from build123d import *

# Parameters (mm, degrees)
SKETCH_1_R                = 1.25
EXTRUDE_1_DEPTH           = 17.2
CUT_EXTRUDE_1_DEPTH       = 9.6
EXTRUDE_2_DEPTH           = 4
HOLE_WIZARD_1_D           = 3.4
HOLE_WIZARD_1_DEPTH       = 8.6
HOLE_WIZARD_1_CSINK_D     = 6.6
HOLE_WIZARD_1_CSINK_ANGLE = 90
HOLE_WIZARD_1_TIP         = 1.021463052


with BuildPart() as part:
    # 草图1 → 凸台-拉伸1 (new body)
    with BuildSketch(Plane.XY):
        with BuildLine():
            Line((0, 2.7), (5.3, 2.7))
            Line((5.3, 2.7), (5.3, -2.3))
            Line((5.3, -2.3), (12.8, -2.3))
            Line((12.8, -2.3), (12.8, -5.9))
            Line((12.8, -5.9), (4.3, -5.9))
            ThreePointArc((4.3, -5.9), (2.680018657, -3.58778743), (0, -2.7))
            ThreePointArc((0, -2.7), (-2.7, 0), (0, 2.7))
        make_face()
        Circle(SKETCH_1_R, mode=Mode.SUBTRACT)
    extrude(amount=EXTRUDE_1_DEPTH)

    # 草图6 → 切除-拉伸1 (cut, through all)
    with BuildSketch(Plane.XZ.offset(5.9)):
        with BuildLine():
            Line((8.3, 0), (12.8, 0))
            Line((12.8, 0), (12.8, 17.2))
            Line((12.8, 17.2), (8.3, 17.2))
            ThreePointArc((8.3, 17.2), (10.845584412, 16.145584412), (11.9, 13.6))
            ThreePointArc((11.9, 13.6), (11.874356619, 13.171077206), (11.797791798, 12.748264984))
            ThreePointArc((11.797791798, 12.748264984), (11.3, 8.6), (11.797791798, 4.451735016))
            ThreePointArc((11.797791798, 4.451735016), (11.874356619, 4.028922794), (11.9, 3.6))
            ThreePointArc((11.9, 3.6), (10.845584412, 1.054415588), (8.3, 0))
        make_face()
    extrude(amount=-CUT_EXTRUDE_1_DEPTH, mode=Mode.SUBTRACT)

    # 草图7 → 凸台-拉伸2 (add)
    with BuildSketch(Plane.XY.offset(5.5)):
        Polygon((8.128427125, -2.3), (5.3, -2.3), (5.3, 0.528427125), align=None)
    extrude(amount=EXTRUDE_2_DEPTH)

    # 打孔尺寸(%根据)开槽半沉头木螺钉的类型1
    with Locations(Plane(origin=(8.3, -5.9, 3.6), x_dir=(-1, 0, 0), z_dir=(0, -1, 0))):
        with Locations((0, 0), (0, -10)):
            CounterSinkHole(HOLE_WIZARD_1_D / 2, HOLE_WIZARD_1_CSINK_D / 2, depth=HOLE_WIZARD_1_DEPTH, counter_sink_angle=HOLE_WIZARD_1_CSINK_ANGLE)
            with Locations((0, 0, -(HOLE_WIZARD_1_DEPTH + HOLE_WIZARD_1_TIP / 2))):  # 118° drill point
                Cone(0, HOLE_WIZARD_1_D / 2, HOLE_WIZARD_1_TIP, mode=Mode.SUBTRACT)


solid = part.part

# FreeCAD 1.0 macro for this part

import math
import FreeCAD as App
import Part
import Sketcher
from FreeCAD import Vector
Q = App.Units.Quantity


def add_polygon(sketch, points):
    """Adds a closed chain of lines whose ends are joined by coincident constraints."""
    first, n = sketch.GeometryCount, len(points)
    for a, b in zip(points, points[1:] + points[:1]):
        sketch.addGeometry(Part.LineSegment(App.Vector(*a, 0), App.Vector(*b, 0)), False)
    for i in range(n):
        sketch.addConstraint(Sketcher.Constraint("Coincident", first + i, 2, first + (i + 1) % n, 1))

doc = App.newDocument("Part")
body = doc.addObject("PartDesign::Body", "Body")

# Sketch on XY plane
sketch1 = body.newObject("Sketcher::SketchObject", "Sketch")
sketch1.AttachmentSupport = (doc.getObject("XY_Plane"), [""])
sketch1.MapMode = "FlatFace"
sketch1.addGeometry(Part.LineSegment(Vector(5.3, 2.7, 0), Vector(0, 2.7, 0)), False)
sketch1.addGeometry(Part.ArcOfCircle(Part.Circle(Vector(0, 0, 0), Vector(0, 0, 1), 2.7), math.radians(90), math.radians(270)), False)
sketch1.addGeometry(Part.ArcOfCircle(Part.Circle(Vector(0, -7.2, 0), Vector(0, 0, 1), 4.5), math.radians(17), math.radians(90)), False)
sketch1.addGeometry(Part.LineSegment(Vector(4.3, -5.9, 0), Vector(12.8, -5.9, 0)), False)
sketch1.addGeometry(Part.LineSegment(Vector(12.8, -5.9, 0), Vector(12.8, -2.3, 0)), False)
sketch1.addGeometry(Part.LineSegment(Vector(12.8, -2.3, 0), Vector(5.3, -2.3, 0)), False)
sketch1.addGeometry(Part.LineSegment(Vector(5.3, -2.3, 0), Vector(5.3, 2.7, 0)), False)
sketch1.addGeometry(Part.Circle(Vector(0, 0, 0), Vector(0, 0, 1), 1.2), False)
sketch1.addConstraint(Sketcher.Constraint("Tangent", 0, 2, 1, 1))
sketch1.addConstraint(Sketcher.Constraint("Tangent", 1, 2, 2, 2))
sketch1.addConstraint(Sketcher.Constraint("Coincident", 2, 1, 3, 1))
sketch1.addConstraint(Sketcher.Constraint("Coincident", 3, 2, 4, 1))
sketch1.addConstraint(Sketcher.Constraint("Coincident", 4, 2, 5, 1))
sketch1.addConstraint(Sketcher.Constraint("Coincident", 5, 2, 6, 1))
sketch1.addConstraint(Sketcher.Constraint("Coincident", 6, 2, 0, 1))
sketch1.addConstraint(Sketcher.Constraint("Horizontal", 0))
sketch1.addConstraint(Sketcher.Constraint("Horizontal", 3))
sketch1.addConstraint(Sketcher.Constraint("Vertical", 4))
sketch1.addConstraint(Sketcher.Constraint("Horizontal", 5))
sketch1.addConstraint(Sketcher.Constraint("Vertical", 6))
sketch1.addConstraint(Sketcher.Constraint("Coincident", 1, 3, -1, 1))
sketch1.addConstraint(Sketcher.Constraint("Coincident", 7, 3, -1, 1))
sketch1.addConstraint(Sketcher.Constraint("PointOnObject", 2, 3, -2))
sketch1.addConstraint(Sketcher.Constraint("Diameter", 7, Q("2.5 mm")))
sketch1.addConstraint(Sketcher.Constraint("Radius", 1, Q("2.7 mm")))
sketch1.addConstraint(Sketcher.Constraint("DistanceY", 6, 1, 6, 2, Q("5 mm")))
sketch1.addConstraint(Sketcher.Constraint("DistanceX", 0, 2, 0, 1, Q("5.3 mm")))
sketch1.addConstraint(Sketcher.Constraint("DistanceX", 3, 1, 3, 2, Q("8.5 mm")))
sketch1.addConstraint(Sketcher.Constraint("DistanceX", 5, 2, 5, 1, Q("7.5 mm")))
sketch1.addConstraint(Sketcher.Constraint("DistanceY", 4, 1, 4, 2, Q("3.6 mm")))
pad1 = body.newObject("PartDesign::Pad", "Pad")
pad1.Profile = sketch1
pad1.Length = 17.2

# Sketch on XZ plane
sketch2 = body.newObject("Sketcher::SketchObject", "Sketch001")
sketch2.AttachmentSupport = (doc.getObject("XZ_Plane"), [""])
sketch2.MapMode = "FlatFace"
sketch2.AttachmentOffset = App.Placement(Vector(0, 0, 5.9), App.Rotation())
sketch2.addGeometry(Part.LineSegment(Vector(8.3, 0, 0), Vector(12.8, 0, 0)), False)
sketch2.addGeometry(Part.LineSegment(Vector(12.8, 0, 0), Vector(12.8, 17.2, 0)), False)
sketch2.addGeometry(Part.LineSegment(Vector(12.8, 17.2, 0), Vector(8.3, 17.2, 0)), False)
sketch2.addGeometry(Part.ArcOfCircle(Part.Circle(Vector(8.3, 13.6, 0), Vector(0, 0, 1), 3.6), math.radians(0), math.radians(90)), False)
sketch2.addGeometry(Part.ArcOfCircle(Part.Circle(Vector(8.3, 13.6, 0), Vector(0, 0, 1), 3.6), math.radians(-13.69), math.radians(0)), False)
sketch2.addGeometry(Part.ArcOfCircle(Part.Circle(Vector(28.8, 8.6, 0), Vector(0, 0, 1), 17.5), math.radians(166), math.radians(194)), False)
sketch2.addGeometry(Part.ArcOfCircle(Part.Circle(Vector(8.3, 3.6, 0), Vector(0, 0, 1), 3.6), math.radians(0), math.radians(13.69)), False)
sketch2.addGeometry(Part.ArcOfCircle(Part.Circle(Vector(8.3, 3.6, 0), Vector(0, 0, 1), 3.6), math.radians(-90), math.radians(0)), False)
sketch2.addConstraint(Sketcher.Constraint("Coincident", 0, 2, 1, 1))
sketch2.addConstraint(Sketcher.Constraint("Coincident", 1, 2, 2, 1))
sketch2.addConstraint(Sketcher.Constraint("Tangent", 2, 2, 3, 2))
sketch2.addConstraint(Sketcher.Constraint("Tangent", 3, 1, 4, 2))
sketch2.addConstraint(Sketcher.Constraint("Tangent", 4, 1, 5, 1))
sketch2.addConstraint(Sketcher.Constraint("Tangent", 5, 2, 6, 2))
sketch2.addConstraint(Sketcher.Constraint("Tangent", 6, 1, 7, 2))
sketch2.addConstraint(Sketcher.Constraint("Tangent", 7, 1, 0, 1))
sketch2.addConstraint(Sketcher.Constraint("Horizontal", 0))
sketch2.addConstraint(Sketcher.Constraint("Vertical", 1))
sketch2.addConstraint(Sketcher.Constraint("Horizontal", 2))
sketch2.addConstraint(Sketcher.Constraint("Equal", 3, 4))
sketch2.addConstraint(Sketcher.Constraint("Equal", 4, 6))
sketch2.addConstraint(Sketcher.Constraint("Equal", 6, 7))
sketch2.addConstraint(Sketcher.Constraint("PointOnObject", 0, 2, -1))
sketch2.addConstraint(Sketcher.Constraint("Horizontal", 4, 3, 3, 1))
sketch2.addConstraint(Sketcher.Constraint("Horizontal", 7, 3, 6, 1))
sketch2.addConstraint(Sketcher.Constraint("Vertical", 4, 3, 6, 3))
sketch2.addConstraint(Sketcher.Constraint("Radius", 3, Q("3.6 mm")))
sketch2.addConstraint(Sketcher.Constraint("DistanceX", 0, 1, 0, 2, Q("4.5 mm")))
sketch2.addConstraint(Sketcher.Constraint("DistanceY", 1, 1, 1, 2, Q("17.2 mm")))
sketch2.addConstraint(Sketcher.Constraint("DistanceX", -1, 1, 3, 3, Q("8.3 mm")))
sketch2.addConstraint(Sketcher.Constraint("Radius", 5, Q("17.533333 mm")))
pocket1 = body.newObject("PartDesign::Pocket", "Pocket")
pocket1.Profile = sketch2
pocket1.Type = "ThroughAll"

# Sketch on XY plane
sketch3 = body.newObject("Sketcher::SketchObject", "Sketch002")
sketch3.AttachmentSupport = (doc.getObject("XY_Plane"), [""])
sketch3.MapMode = "FlatFace"
sketch3.AttachmentOffset = App.Placement(Vector(0, 0, 5.5), App.Rotation())
add_polygon(sketch3, [(5.3, -2.3), (8.1, -2.3), (5.3, 0.5)])  # lines 0-2
sketch3.addConstraint(Sketcher.Constraint("Horizontal", 0))
sketch3.addConstraint(Sketcher.Constraint("Vertical", 2))
sketch3.addConstraint(Sketcher.Constraint("Equal", 0, 2))
sketch3.addConstraint(Sketcher.Constraint("Distance", 1, Q("4 mm")))
sketch3.addConstraint(Sketcher.Constraint("DistanceY", 0, 2, -1, 1, Q("2.3 mm")))
sketch3.addConstraint(Sketcher.Constraint("DistanceX", -1, 1, 1, 2, Q("5.3 mm")))
pad2 = body.newObject("PartDesign::Pad", "Pad001")
pad2.Profile = sketch3
pad2.Length = 4

# Sketch on XZ plane
sketch4 = body.newObject("Sketcher::SketchObject", "Sketch003")
sketch4.AttachmentSupport = (doc.getObject("XZ_Plane"), [""])
sketch4.MapMode = "FlatFace"
sketch4.AttachmentOffset = App.Placement(Vector(0, 0, 5.9), App.Rotation())
sketch4.addGeometry(Part.Circle(Vector(8.3, 3.6, 0), Vector(0, 0, 1), 1.7), False)
sketch4.addGeometry(Part.Circle(Vector(8.3, 13.6, 0), Vector(0, 0, 1), 1.7), False)
sketch4.addConstraint(Sketcher.Constraint("Equal", 0, 1))
sketch4.addConstraint(Sketcher.Constraint("Vertical", 0, 3, 1, 3))
sketch4.addConstraint(Sketcher.Constraint("Diameter", 0, Q("3.4 mm")))
sketch4.addConstraint(Sketcher.Constraint("DistanceY", 0, 3, 1, 3, Q("10 mm")))
sketch4.addConstraint(Sketcher.Constraint("DistanceX", -1, 1, 0, 3, Q("8.3 mm")))
sketch4.addConstraint(Sketcher.Constraint("DistanceY", -1, 1, 0, 3, Q("3.6 mm")))
doc.recompute()
hole = body.newObject("PartDesign::Hole", "Hole")
hole.Profile = sketch4
hole.ThreadType = "None"
hole.Diameter = 3.4
hole.DepthType = "Dimension"
hole.Depth = 8.6
hole.DrillPoint = "Angled"
hole.DrillPointAngle = 118
hole.HoleCutType = "Countersink"
hole.HoleCutDiameter = 6.6
hole.HoleCutCountersinkAngle = 90

doc.recompute()
